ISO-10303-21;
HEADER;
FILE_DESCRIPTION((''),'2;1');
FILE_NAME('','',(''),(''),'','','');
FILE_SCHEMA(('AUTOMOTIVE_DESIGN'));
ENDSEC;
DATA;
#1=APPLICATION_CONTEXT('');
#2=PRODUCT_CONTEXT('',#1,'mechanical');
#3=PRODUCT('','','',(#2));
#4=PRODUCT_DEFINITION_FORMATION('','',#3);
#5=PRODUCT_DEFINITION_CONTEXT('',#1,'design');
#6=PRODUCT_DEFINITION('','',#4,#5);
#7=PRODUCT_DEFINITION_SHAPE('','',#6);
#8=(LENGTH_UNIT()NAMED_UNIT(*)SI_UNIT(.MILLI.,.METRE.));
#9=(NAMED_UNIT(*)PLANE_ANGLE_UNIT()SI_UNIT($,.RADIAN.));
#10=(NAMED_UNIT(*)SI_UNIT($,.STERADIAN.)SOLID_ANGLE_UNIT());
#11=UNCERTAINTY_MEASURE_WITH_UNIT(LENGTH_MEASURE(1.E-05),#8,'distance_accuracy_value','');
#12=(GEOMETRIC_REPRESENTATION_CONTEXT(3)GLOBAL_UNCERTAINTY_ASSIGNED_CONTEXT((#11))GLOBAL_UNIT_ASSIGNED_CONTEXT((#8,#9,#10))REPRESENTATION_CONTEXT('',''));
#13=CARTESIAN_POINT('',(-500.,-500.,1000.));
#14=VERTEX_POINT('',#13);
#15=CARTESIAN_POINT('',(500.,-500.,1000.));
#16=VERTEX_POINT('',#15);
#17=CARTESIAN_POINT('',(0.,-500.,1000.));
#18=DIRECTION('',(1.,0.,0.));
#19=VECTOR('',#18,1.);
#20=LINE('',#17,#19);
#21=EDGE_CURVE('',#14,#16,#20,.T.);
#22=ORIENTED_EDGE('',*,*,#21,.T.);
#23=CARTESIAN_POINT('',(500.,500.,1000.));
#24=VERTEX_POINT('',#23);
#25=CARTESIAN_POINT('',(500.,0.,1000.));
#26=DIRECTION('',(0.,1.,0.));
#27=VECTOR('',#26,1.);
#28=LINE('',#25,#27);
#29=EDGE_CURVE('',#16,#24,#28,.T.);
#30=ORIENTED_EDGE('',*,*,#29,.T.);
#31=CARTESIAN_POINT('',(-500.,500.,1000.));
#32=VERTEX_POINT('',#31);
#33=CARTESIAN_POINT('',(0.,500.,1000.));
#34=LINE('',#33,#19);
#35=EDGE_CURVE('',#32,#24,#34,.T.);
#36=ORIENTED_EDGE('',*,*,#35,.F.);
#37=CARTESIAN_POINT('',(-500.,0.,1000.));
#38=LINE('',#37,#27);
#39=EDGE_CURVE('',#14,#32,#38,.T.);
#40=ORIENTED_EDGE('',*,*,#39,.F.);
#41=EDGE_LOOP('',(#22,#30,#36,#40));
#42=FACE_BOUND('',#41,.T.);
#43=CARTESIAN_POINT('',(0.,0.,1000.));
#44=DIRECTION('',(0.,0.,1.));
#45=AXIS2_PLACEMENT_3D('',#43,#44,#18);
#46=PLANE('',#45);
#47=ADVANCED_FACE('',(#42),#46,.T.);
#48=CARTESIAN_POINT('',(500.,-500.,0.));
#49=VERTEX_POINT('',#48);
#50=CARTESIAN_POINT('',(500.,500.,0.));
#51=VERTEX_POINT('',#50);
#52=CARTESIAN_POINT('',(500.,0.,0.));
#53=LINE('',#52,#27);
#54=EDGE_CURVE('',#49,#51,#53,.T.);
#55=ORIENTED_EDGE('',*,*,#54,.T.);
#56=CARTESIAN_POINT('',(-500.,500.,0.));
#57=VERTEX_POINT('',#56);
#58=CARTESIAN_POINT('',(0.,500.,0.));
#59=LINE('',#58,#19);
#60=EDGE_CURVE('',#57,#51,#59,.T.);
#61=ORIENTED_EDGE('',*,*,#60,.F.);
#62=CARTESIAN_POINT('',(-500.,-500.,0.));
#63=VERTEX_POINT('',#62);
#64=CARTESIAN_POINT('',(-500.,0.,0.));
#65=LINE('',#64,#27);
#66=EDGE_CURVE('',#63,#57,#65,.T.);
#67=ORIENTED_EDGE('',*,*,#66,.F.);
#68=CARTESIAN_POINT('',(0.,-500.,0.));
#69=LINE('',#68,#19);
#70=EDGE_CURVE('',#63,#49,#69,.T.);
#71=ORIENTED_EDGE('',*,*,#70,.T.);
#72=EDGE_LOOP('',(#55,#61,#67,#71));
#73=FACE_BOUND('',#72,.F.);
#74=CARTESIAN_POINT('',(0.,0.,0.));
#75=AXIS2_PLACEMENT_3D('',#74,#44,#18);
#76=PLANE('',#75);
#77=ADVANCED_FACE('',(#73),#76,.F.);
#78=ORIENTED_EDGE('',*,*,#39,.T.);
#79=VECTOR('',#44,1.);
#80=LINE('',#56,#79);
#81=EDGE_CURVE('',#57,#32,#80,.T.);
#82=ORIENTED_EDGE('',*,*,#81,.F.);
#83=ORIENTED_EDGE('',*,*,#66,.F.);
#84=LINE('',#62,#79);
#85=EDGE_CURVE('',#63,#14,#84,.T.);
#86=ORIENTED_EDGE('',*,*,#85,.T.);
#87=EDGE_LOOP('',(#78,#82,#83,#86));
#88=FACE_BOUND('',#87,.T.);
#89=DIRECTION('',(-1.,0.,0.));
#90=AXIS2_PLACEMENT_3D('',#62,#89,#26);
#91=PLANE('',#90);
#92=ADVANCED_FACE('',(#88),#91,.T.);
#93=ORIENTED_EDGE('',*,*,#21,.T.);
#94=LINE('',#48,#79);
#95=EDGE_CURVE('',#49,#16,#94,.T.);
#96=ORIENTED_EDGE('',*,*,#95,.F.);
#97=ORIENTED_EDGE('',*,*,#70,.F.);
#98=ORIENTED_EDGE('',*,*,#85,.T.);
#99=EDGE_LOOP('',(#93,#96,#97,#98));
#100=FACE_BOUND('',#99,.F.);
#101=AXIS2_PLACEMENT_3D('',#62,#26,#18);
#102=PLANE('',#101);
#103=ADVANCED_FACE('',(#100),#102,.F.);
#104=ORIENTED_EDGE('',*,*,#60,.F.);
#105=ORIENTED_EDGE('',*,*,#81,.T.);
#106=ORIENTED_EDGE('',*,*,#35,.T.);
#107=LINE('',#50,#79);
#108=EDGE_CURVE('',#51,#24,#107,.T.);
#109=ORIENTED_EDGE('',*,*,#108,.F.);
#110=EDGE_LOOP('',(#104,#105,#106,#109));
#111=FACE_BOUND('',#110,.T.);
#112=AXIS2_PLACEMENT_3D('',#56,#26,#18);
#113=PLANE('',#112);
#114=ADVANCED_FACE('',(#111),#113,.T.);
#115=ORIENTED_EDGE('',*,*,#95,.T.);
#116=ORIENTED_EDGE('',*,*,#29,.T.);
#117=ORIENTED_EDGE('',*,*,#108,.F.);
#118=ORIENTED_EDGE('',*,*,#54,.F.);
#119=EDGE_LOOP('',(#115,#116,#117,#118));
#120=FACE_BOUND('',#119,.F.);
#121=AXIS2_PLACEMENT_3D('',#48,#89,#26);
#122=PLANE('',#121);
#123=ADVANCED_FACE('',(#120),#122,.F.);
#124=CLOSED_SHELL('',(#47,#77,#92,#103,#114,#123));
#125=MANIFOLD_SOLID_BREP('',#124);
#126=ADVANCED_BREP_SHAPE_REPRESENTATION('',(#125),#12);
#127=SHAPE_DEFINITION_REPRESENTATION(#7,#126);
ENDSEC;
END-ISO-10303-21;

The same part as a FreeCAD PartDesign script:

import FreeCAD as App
import Part
import Sketcher
from FreeCAD import Vector
Q = App.Units.Quantity

doc = App.newDocument("Part")
body = doc.addObject("PartDesign::Body", "Body")

# Sketch on XY plane
sketch1 = body.newObject("Sketcher::SketchObject", "Sketch")
sketch1.AttachmentSupport = (doc.getObject("XY_Plane"), [""])
sketch1.MapMode = "FlatFace"
sketch1.addGeometry([
    Part.LineSegment(Vector(-500, 500, 0), Vector(-500, -500, 0)),
    Part.LineSegment(Vector(-500, -500, 0), Vector(500, -500, 0)),
    Part.LineSegment(Vector(500, -500, 0), Vector(500, 500, 0)),
    Part.LineSegment(Vector(500, 500, 0), Vector(-500, 500, 0)),
], False)
sketch1.addConstraint([
    Sketcher.Constraint("Coincident", 0, 2, 1, 1),
    Sketcher.Constraint("Coincident", 1, 2, 2, 1),
    Sketcher.Constraint("Coincident", 2, 2, 3, 1),
    Sketcher.Constraint("Coincident", 3, 2, 0, 1),
    Sketcher.Constraint("Vertical", 0),
    Sketcher.Constraint("Horizontal", 1),
    Sketcher.Constraint("Vertical", 2),
    Sketcher.Constraint("Horizontal", 3),
    Sketcher.Constraint("Symmetric", 0, 2, 2, 2, -1, 1),
    Sketcher.Constraint("Equal", 3, 0),
    Sketcher.Constraint("DistanceX", 1, 1, 1, 2, Q("1000 mm")),
])
pad1 = body.newObject("PartDesign::Pad", "Pad")
pad1.Profile = sketch1
pad1.Length = 1000

doc.recompute()
